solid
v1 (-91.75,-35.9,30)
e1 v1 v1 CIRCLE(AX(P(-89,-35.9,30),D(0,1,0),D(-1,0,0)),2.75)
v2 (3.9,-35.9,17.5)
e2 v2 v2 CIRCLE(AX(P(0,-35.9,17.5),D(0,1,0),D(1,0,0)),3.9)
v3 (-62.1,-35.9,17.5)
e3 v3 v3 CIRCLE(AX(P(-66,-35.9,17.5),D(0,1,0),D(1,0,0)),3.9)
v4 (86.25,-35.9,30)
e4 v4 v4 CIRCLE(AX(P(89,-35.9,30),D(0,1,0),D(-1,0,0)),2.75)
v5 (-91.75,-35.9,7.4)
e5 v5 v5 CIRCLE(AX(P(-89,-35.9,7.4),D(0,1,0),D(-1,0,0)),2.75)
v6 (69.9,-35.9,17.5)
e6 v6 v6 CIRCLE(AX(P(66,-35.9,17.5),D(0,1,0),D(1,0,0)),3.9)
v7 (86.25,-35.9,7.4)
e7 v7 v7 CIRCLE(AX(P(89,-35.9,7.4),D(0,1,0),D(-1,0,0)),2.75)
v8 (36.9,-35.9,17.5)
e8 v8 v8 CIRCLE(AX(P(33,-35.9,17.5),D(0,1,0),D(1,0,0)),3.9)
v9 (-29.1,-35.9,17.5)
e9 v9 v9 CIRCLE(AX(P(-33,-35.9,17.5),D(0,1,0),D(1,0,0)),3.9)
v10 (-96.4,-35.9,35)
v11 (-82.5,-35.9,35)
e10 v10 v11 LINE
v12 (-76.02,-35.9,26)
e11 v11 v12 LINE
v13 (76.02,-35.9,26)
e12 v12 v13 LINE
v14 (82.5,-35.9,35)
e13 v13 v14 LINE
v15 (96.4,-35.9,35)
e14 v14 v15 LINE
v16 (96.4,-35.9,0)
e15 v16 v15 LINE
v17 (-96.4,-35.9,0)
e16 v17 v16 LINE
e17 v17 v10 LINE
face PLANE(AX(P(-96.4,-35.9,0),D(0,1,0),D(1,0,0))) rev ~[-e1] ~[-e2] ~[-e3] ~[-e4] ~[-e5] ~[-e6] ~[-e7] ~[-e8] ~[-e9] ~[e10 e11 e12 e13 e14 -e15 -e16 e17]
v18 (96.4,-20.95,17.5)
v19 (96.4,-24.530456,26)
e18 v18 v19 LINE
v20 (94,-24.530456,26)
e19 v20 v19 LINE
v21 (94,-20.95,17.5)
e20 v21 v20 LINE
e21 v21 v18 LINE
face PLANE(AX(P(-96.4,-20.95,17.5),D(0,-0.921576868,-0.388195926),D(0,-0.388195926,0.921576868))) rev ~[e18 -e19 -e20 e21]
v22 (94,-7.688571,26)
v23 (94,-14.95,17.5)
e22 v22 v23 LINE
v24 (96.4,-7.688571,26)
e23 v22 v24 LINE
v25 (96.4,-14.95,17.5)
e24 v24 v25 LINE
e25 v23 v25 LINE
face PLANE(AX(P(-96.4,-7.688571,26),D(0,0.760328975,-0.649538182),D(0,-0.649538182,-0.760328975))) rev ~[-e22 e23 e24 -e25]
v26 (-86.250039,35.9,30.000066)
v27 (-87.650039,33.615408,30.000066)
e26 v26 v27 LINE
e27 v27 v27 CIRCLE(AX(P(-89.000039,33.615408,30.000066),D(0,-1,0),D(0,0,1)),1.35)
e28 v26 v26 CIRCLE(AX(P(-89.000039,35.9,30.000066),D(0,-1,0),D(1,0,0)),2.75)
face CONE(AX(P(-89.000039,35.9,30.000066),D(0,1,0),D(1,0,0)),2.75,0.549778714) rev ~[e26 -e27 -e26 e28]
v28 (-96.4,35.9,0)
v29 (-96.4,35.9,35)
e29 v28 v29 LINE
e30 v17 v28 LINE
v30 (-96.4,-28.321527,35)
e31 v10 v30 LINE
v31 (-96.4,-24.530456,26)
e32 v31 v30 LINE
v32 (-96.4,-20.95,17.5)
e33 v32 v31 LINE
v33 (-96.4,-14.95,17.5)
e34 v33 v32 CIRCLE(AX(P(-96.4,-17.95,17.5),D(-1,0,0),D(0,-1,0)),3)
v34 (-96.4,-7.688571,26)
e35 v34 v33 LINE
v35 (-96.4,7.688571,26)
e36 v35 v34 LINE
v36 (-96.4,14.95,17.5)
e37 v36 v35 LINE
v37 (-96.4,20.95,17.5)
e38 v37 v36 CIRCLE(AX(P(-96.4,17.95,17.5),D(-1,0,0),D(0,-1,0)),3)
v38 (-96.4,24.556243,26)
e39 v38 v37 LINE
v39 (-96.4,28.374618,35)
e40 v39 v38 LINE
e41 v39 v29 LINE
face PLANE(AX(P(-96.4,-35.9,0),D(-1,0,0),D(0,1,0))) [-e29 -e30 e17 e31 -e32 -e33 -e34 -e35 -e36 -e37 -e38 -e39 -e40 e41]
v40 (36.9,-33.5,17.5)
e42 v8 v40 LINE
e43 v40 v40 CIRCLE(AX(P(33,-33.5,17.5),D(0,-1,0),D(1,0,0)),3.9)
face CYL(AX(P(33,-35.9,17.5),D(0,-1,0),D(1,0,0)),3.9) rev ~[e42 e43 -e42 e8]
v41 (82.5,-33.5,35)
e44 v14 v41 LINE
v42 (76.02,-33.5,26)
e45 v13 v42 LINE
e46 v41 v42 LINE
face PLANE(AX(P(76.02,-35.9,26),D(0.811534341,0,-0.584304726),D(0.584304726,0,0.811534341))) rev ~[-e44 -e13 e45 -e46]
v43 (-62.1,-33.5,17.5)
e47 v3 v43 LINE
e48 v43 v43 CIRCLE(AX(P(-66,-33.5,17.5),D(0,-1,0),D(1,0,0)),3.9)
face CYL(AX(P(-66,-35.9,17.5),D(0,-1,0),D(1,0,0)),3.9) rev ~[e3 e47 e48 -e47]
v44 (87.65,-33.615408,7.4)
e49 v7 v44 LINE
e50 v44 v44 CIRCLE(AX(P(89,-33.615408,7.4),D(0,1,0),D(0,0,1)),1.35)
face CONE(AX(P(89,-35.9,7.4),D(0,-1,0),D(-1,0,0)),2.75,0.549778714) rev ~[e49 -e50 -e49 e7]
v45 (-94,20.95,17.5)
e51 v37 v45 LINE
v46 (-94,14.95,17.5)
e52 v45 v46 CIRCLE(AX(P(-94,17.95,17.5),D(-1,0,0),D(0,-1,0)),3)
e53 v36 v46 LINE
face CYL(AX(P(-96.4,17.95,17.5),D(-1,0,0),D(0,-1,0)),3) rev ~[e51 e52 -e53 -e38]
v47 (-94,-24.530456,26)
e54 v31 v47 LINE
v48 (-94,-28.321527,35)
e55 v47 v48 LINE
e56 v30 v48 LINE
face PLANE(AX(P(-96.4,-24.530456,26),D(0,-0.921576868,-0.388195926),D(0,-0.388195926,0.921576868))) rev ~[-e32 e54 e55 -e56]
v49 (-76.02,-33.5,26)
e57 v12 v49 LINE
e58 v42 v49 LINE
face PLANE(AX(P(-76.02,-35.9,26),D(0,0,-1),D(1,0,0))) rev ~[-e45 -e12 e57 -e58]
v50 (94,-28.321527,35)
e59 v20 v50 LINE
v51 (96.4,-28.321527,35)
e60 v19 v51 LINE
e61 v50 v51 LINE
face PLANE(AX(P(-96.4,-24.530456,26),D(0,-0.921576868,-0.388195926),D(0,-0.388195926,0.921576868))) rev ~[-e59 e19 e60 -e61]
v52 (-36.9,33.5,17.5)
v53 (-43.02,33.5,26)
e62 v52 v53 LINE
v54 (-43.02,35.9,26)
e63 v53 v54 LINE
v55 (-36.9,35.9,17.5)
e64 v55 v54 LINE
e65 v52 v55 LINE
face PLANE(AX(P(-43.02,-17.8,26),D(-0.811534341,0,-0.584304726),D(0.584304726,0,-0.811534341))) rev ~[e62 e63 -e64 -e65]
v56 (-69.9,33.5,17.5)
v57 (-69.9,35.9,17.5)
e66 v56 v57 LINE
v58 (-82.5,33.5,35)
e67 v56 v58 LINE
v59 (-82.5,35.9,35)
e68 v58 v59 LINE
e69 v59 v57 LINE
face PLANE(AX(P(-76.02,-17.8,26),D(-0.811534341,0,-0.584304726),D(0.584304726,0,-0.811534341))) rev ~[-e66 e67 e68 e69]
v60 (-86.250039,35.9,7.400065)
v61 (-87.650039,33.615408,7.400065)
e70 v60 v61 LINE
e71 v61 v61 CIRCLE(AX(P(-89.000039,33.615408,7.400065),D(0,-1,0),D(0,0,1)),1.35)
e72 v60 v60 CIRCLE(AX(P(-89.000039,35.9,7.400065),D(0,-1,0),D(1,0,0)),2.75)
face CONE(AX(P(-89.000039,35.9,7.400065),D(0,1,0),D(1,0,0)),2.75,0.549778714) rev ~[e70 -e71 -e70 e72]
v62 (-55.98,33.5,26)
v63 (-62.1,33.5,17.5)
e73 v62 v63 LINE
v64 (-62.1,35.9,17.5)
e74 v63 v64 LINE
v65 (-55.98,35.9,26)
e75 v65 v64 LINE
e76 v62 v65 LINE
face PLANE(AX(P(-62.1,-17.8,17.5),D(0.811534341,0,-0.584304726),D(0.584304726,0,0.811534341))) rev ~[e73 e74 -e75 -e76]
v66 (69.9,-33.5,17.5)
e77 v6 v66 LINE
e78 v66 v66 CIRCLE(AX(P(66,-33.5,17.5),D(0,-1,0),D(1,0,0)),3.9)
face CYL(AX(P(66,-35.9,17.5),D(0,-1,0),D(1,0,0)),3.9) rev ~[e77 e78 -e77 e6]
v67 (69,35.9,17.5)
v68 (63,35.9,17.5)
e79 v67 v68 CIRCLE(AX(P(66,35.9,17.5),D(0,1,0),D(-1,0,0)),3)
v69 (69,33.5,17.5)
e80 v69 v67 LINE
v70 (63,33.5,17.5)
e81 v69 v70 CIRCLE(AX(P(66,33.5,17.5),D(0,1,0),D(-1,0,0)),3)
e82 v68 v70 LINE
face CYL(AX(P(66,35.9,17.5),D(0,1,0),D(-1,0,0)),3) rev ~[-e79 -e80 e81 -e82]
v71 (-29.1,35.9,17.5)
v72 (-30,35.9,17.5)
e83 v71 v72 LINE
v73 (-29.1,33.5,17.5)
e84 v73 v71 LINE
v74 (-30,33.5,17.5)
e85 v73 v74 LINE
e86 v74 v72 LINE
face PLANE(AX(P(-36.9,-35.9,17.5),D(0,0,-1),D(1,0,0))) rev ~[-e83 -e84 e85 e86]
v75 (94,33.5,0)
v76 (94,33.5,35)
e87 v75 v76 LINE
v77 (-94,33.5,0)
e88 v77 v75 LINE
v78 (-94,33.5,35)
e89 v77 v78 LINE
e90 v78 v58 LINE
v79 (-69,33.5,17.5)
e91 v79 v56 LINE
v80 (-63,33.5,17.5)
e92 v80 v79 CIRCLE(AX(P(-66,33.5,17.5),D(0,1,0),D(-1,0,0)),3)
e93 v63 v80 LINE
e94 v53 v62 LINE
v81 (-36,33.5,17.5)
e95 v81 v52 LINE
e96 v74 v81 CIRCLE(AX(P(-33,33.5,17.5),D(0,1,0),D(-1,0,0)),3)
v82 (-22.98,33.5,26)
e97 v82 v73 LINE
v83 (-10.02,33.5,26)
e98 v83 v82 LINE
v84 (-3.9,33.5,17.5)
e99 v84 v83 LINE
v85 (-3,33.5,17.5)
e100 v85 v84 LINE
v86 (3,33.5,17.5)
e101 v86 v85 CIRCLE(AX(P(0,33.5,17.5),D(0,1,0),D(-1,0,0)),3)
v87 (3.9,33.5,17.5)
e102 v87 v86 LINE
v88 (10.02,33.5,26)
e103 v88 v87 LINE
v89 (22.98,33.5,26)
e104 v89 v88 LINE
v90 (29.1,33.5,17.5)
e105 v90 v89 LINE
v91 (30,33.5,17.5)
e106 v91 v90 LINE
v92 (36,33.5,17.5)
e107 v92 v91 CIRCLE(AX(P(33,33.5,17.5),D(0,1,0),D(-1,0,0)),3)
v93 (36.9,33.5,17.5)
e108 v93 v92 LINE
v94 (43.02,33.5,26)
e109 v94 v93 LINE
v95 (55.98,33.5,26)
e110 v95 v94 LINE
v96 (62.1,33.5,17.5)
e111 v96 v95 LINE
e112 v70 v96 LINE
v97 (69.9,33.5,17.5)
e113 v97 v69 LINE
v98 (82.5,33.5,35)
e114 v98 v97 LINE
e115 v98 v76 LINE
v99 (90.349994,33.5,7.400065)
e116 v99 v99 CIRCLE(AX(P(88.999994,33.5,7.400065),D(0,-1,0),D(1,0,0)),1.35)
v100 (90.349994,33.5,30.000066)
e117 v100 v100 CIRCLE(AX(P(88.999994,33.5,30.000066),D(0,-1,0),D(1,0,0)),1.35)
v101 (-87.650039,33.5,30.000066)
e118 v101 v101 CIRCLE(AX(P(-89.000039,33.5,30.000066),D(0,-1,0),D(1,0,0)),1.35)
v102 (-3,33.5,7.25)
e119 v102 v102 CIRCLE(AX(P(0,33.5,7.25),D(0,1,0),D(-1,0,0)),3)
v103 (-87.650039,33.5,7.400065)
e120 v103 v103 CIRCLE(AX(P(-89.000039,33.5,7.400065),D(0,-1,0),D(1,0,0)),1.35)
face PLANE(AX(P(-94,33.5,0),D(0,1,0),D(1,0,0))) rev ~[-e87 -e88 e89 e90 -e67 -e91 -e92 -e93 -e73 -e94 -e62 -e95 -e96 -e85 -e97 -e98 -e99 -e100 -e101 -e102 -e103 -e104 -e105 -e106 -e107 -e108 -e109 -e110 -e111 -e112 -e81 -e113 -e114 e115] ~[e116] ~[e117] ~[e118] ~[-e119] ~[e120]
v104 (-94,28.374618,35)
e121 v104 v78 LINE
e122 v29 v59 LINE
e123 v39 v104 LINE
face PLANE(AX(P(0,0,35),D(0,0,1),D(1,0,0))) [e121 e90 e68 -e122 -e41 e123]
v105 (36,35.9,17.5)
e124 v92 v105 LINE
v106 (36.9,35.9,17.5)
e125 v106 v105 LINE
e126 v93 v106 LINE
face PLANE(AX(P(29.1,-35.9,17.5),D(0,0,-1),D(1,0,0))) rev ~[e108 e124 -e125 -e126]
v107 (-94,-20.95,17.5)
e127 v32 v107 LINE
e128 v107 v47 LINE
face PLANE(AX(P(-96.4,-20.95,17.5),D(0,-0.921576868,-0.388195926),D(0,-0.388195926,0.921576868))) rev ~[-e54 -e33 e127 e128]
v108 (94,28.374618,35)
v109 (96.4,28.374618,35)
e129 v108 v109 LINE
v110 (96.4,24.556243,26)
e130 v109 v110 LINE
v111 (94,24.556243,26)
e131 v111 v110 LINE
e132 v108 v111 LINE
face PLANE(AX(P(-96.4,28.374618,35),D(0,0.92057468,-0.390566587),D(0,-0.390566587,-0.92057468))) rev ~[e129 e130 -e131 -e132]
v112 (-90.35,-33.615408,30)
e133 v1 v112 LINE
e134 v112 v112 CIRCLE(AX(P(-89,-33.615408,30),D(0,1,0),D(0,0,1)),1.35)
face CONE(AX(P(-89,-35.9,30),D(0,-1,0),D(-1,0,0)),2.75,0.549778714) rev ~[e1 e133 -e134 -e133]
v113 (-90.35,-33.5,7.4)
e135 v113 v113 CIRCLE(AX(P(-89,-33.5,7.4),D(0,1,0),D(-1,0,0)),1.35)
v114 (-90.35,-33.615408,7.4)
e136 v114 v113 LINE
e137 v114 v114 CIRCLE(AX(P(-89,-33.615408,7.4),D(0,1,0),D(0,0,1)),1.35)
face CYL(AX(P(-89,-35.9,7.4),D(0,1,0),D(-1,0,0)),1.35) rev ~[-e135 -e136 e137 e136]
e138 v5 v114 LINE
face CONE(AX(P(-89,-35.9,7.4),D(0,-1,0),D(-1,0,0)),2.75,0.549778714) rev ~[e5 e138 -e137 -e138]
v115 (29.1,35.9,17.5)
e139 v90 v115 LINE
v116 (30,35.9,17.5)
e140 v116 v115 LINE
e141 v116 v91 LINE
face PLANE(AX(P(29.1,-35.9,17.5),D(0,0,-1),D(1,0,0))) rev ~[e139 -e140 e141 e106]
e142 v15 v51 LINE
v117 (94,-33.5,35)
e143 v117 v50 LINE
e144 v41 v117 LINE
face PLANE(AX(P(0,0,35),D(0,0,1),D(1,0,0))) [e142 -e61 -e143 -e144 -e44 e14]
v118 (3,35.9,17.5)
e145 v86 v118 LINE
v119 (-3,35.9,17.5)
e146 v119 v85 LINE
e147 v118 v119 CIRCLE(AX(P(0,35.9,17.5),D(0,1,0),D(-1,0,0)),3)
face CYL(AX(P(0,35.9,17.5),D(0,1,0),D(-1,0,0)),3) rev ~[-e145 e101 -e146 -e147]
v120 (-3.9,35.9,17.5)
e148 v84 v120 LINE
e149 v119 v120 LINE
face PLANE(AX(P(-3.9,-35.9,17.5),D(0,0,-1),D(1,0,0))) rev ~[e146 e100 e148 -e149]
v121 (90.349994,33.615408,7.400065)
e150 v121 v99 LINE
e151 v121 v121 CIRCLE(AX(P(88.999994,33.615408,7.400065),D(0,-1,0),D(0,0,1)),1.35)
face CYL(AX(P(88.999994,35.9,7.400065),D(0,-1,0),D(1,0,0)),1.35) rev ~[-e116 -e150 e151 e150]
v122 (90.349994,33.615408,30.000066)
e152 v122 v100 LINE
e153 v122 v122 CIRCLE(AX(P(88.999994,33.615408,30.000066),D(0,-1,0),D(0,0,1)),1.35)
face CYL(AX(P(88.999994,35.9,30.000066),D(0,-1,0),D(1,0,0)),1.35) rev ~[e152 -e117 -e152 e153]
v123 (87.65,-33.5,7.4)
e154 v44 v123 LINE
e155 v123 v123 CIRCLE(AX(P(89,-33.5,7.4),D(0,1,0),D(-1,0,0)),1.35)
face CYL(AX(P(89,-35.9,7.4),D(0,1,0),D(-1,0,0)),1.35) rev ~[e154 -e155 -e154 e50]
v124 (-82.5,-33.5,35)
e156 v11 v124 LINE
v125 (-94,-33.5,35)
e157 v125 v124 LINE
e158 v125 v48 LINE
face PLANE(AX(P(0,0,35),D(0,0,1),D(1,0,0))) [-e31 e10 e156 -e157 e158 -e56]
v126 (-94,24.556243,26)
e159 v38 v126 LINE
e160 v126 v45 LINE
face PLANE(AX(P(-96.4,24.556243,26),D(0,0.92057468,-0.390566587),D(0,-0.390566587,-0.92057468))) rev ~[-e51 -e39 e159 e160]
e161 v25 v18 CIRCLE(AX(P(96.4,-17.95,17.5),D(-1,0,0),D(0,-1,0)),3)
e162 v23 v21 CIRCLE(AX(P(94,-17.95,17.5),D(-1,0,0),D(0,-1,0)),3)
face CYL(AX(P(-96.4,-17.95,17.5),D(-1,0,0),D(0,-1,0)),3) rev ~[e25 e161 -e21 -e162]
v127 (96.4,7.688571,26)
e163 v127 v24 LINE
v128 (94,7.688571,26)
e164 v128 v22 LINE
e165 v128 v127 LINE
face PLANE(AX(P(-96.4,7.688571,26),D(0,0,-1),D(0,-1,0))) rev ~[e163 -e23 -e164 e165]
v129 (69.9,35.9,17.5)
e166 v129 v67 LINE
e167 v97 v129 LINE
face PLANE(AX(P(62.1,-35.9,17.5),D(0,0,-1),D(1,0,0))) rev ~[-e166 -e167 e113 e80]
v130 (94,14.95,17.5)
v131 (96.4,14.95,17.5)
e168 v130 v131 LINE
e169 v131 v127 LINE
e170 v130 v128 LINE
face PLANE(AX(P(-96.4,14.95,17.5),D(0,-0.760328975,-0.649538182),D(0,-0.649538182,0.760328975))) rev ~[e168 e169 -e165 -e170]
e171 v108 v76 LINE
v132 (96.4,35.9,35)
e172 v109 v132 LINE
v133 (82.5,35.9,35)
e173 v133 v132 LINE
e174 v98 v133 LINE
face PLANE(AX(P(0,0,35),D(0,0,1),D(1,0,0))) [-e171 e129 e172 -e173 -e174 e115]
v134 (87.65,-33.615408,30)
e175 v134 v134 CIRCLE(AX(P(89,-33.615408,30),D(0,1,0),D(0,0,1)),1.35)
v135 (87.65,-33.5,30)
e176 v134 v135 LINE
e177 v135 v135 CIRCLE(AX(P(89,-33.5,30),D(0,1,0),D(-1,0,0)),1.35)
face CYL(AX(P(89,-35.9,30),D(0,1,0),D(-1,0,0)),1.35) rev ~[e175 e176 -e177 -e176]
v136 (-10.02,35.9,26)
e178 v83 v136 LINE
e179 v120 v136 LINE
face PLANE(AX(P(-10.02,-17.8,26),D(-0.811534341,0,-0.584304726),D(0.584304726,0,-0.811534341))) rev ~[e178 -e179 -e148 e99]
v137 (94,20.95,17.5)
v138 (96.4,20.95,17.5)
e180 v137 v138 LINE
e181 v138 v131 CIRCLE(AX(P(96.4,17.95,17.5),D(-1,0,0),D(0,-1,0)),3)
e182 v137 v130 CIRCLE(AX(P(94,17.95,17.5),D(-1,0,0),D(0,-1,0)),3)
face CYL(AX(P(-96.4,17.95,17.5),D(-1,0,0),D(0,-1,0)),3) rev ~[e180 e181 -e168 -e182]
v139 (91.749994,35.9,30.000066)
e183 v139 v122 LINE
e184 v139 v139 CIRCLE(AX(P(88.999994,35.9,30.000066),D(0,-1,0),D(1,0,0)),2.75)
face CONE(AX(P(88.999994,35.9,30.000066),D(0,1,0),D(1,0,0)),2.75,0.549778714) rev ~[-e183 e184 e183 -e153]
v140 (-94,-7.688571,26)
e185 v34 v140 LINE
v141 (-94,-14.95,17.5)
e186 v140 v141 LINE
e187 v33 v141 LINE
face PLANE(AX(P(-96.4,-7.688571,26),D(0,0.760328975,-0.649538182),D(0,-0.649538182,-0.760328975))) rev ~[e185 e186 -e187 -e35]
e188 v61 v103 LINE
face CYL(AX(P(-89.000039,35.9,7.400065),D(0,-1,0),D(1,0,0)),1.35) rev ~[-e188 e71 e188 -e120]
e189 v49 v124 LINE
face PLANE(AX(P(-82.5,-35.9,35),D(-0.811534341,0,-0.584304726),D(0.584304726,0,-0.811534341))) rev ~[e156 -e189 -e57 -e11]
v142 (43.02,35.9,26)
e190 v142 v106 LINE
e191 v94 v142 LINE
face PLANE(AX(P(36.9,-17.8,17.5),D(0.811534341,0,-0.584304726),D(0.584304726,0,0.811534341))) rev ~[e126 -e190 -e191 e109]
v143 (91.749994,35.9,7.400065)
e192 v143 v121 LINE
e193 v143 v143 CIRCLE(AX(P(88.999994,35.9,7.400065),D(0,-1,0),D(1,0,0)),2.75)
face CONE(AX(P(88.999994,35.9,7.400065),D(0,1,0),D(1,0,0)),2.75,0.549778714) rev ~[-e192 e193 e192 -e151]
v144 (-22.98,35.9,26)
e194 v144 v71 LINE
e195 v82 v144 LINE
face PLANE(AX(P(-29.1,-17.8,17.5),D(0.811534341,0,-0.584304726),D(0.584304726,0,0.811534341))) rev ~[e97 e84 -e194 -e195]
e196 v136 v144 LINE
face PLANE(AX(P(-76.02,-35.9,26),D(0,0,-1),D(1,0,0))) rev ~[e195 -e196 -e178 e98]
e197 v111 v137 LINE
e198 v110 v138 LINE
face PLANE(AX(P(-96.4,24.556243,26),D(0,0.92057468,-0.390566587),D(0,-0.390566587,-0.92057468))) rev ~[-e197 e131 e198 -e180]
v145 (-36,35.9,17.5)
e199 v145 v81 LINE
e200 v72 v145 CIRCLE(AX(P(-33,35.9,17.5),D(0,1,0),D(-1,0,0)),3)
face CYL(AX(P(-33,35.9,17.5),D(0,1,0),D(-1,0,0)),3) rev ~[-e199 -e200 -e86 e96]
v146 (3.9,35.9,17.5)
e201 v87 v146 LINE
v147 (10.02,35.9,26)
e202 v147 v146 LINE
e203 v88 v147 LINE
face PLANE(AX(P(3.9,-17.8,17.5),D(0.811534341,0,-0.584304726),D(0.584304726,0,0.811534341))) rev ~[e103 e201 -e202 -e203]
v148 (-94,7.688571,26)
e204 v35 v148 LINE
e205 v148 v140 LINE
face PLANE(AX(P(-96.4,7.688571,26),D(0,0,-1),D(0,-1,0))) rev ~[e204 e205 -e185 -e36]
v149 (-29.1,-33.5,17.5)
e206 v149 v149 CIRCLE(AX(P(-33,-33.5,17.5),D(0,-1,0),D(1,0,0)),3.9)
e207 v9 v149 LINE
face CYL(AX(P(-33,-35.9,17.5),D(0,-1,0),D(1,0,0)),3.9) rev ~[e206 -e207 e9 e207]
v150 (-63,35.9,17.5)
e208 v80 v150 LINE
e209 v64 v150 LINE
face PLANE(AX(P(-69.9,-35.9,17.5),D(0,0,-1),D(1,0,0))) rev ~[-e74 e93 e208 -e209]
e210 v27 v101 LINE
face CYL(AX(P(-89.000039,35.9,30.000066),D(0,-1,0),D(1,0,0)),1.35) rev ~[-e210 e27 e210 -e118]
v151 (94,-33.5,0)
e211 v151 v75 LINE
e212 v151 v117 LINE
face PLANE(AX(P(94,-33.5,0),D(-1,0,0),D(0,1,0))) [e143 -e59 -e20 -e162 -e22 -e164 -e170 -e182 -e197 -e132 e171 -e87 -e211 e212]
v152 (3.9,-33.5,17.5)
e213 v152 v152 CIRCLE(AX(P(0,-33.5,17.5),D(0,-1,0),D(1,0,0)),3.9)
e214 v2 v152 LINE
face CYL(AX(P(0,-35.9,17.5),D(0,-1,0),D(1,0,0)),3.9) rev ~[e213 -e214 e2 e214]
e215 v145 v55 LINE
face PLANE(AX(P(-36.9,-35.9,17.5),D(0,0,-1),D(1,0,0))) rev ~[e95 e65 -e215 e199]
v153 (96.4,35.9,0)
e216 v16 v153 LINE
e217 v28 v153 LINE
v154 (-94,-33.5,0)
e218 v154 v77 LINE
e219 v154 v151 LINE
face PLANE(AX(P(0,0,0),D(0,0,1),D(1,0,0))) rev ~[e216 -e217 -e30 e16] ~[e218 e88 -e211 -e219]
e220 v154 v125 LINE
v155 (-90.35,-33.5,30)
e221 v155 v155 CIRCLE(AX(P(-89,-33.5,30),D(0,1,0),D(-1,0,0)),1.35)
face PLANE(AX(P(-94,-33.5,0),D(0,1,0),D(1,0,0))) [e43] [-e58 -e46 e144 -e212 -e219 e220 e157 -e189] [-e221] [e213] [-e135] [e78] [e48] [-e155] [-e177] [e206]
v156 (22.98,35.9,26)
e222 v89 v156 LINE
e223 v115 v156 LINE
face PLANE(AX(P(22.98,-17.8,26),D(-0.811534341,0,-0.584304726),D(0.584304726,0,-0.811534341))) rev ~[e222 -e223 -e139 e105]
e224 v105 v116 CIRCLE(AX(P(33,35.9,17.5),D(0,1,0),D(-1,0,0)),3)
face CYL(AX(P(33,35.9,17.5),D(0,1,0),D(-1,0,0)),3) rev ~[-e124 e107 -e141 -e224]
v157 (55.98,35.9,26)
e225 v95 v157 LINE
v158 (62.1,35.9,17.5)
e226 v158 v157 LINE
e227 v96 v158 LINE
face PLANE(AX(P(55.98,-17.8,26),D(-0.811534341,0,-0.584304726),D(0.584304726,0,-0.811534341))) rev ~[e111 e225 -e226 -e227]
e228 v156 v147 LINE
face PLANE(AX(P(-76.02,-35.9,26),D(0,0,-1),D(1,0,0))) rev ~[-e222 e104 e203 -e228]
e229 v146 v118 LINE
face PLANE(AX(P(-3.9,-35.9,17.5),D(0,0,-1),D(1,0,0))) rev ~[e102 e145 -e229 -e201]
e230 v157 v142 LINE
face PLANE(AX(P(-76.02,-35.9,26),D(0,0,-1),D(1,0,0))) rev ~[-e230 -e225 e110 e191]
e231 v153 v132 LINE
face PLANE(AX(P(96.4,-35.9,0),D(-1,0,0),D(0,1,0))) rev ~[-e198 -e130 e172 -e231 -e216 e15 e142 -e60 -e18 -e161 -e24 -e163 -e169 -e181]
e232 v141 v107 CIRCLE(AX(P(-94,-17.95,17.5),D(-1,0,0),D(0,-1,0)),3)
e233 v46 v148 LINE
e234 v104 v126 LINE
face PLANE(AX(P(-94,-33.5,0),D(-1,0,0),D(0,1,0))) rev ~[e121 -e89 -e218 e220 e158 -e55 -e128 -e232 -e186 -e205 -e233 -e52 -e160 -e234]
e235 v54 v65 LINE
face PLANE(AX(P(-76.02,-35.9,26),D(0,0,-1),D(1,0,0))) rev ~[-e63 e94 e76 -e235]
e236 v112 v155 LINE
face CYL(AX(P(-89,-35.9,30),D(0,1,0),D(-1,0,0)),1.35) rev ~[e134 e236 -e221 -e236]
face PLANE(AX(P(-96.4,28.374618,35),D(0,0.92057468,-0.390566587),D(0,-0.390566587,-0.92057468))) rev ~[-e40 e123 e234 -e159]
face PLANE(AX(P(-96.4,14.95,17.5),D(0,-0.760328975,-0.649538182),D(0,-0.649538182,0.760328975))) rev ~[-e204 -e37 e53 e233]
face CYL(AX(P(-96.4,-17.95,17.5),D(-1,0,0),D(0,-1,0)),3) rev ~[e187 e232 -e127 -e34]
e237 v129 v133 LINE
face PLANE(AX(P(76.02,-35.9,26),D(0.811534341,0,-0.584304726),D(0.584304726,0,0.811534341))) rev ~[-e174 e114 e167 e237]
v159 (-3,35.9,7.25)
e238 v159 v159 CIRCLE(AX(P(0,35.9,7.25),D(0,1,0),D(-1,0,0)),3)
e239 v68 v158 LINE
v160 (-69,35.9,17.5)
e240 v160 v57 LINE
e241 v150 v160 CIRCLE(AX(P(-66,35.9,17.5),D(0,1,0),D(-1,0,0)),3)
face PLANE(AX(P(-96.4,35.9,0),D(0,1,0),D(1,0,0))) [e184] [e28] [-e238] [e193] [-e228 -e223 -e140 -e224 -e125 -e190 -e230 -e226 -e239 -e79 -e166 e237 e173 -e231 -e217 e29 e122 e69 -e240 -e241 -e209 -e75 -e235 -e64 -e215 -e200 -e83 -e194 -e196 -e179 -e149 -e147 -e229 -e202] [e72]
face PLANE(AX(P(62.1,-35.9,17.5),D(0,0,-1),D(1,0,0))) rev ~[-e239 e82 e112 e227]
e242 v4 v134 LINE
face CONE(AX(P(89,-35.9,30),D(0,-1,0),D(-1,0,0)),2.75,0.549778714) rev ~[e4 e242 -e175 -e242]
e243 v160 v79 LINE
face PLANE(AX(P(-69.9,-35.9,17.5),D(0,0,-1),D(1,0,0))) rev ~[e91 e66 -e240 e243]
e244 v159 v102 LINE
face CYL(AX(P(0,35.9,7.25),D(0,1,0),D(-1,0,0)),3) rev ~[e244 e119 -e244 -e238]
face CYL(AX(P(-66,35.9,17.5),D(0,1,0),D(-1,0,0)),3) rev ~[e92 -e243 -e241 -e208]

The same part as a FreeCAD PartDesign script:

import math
import FreeCAD as App
import Part
import Sketcher

V = App.Vector


def add_polygon(sketch, points):
    """Adds a closed chain of lines whose ends are joined by coincident constraints."""
    first, n = sketch.GeometryCount, len(points)
    for a, b in zip(points, points[1:] + points[:1]):
        sketch.addGeometry(Part.LineSegment(App.Vector(*a, 0), App.Vector(*b, 0)), False)
    for i in range(n):
        sketch.addConstraint(Sketcher.Constraint("Coincident", first + i, 2, first + (i + 1) % n, 1))

doc = App.newDocument("Part")
body = doc.addObject("PartDesign::Body", "Body")

# Sketch on XY plane
sketch1 = body.newObject("Sketcher::SketchObject", "Sketch")
sketch1.AttachmentSupport = (doc.getObject("XY_Plane"), [""])
sketch1.MapMode = "FlatFace"
add_polygon(sketch1, [(-96, 36), (-96, -36), (96, -36), (96, 36)])  # lines 0-3
add_polygon(sketch1, [(94, -34), (-94, -34), (-94, 34), (94, 34)])  # lines 4-7
sketch1.addConstraint(Sketcher.Constraint("Vertical", 0))
sketch1.addConstraint(Sketcher.Constraint("Horizontal", 1))
sketch1.addConstraint(Sketcher.Constraint("Vertical", 2))
sketch1.addConstraint(Sketcher.Constraint("Horizontal", 3))
sketch1.addConstraint(Sketcher.Constraint("Horizontal", 4))
sketch1.addConstraint(Sketcher.Constraint("Vertical", 5))
sketch1.addConstraint(Sketcher.Constraint("Horizontal", 6))
sketch1.addConstraint(Sketcher.Constraint("Vertical", 7))
sketch1.addConstraint(Sketcher.Constraint("Symmetric", 0, 2, 2, 2, -1, 1))
sketch1.addConstraint(Sketcher.Constraint("Symmetric", 4, 2, 6, 2, -1, 1))
sketch1.addConstraint(Sketcher.Constraint("DistanceX", 4, 2, 4, 1, 188.0))
sketch1.addConstraint(Sketcher.Constraint("DistanceY", 5, 1, 5, 2, 67.0))
sketch1.addConstraint(Sketcher.Constraint("DistanceX", 1, 1, 1, 2, 192.8))
sketch1.addConstraint(Sketcher.Constraint("DistanceY", 0, 2, 0, 1, 71.8))
pad1 = body.newObject("PartDesign::Pad", "Pad")
pad1.Profile = sketch1
pad1.Length = 35

# Sketch on YZ plane
sketch2 = body.newObject("Sketcher::SketchObject", "Sketch001")
sketch2.AttachmentSupport = (doc.getObject("YZ_Plane"), [""])
sketch2.MapMode = "FlatFace"
sketch2.AttachmentOffset = App.Placement(V(0, 0, -96.4), App.Rotation())
sketch2.addGeometry(Part.Circle(V(17.9, 17.5, 0), V(0, 0, 1), 3), False)
sketch2.addGeometry(Part.Circle(V(-17.9, 17.5, 0), V(0, 0, 1), 3), False)
sketch2.addConstraint(Sketcher.Constraint("Equal", 0, 1))
sketch2.addConstraint(Sketcher.Constraint("Symmetric", 0, 3, 1, 3, -2))
sketch2.addConstraint(Sketcher.Constraint("Diameter", 0, 6.0))
sketch2.addConstraint(Sketcher.Constraint("DistanceY", -1, 1, 0, 3, 17.5))
sketch2.addConstraint(Sketcher.Constraint("DistanceX", 1, 3, 0, 3, 35.9))
pocket1 = body.newObject("PartDesign::Pocket", "Pocket")
pocket1.Profile = sketch2
pocket1.Type = "ThroughAll"
pocket1.Reversed = True

# Sketch on XZ plane
sketch3 = body.newObject("Sketcher::SketchObject", "Sketch002")
sketch3.AttachmentSupport = (doc.getObject("XZ_Plane"), [""])
sketch3.MapMode = "FlatFace"
sketch3.AttachmentOffset = App.Placement(V(0, 0, 35.9), App.Rotation())
sketch3.addGeometry(Part.Circle(V(0, 17.5, 0), V(0, 0, 1), 3.9), False)
sketch3.addGeometry(Part.Circle(V(33, 17.5, 0), V(0, 0, 1), 3.9), False)
sketch3.addGeometry(Part.Circle(V(66, 17.5, 0), V(0, 0, 1), 3.9), False)
sketch3.addGeometry(Part.Circle(V(-33, 17.5, 0), V(0, 0, 1), 3.9), False)
sketch3.addGeometry(Part.Circle(V(-66, 17.5, 0), V(0, 0, 1), 3.9), False)
sketch3.addConstraint(Sketcher.Constraint("Equal", 0, 1))
sketch3.addConstraint(Sketcher.Constraint("Equal", 1, 2))
sketch3.addConstraint(Sketcher.Constraint("Equal", 2, 3))
sketch3.addConstraint(Sketcher.Constraint("Equal", 3, 4))
sketch3.addConstraint(Sketcher.Constraint("Symmetric", 1, 3, 3, 3, -2))
sketch3.addConstraint(Sketcher.Constraint("Symmetric", 2, 3, 4, 3, -2))
sketch3.addConstraint(Sketcher.Constraint("PointOnObject", 0, 3, -2))
sketch3.addConstraint(Sketcher.Constraint("Horizontal", 0, 3, 1, 3))
sketch3.addConstraint(Sketcher.Constraint("Horizontal", 1, 3, 2, 3))
sketch3.addConstraint(Sketcher.Constraint("Diameter", 0, 7.8))
sketch3.addConstraint(Sketcher.Constraint("DistanceX", -1, 1, 1, 3, 33.0))
sketch3.addConstraint(Sketcher.Constraint("DistanceX", -1, 1, 2, 3, 66.0))
sketch3.addConstraint(Sketcher.Constraint("DistanceY", -1, 1, 0, 3, 17.5))
pocket2 = body.newObject("PartDesign::Pocket", "Pocket001")
pocket2.Profile = sketch3
pocket2.Length = 25

# Sketch on XZ plane
sketch4 = body.newObject("Sketcher::SketchObject", "Sketch003")
sketch4.AttachmentSupport = (doc.getObject("XZ_Plane"), [""])
sketch4.MapMode = "FlatFace"
sketch4.AttachmentOffset = App.Placement(V(0, 0, -35.9), App.Rotation())
sketch4.addGeometry(Part.Circle(V(0, 17.5, 0), V(0, 0, 1), 3), False)
sketch4.addGeometry(Part.Circle(V(-33, 17.5, 0), V(0, 0, 1), 3), False)
sketch4.addGeometry(Part.Circle(V(-66, 17.5, 0), V(0, 0, 1), 3), False)
sketch4.addGeometry(Part.Circle(V(33, 17.5, 0), V(0, 0, 1), 3), False)
sketch4.addGeometry(Part.Circle(V(66, 17.5, 0), V(0, 0, 1), 3), False)
sketch4.addConstraint(Sketcher.Constraint("Equal", 0, 1))
sketch4.addConstraint(Sketcher.Constraint("Equal", 1, 2))
sketch4.addConstraint(Sketcher.Constraint("Equal", 2, 3))
sketch4.addConstraint(Sketcher.Constraint("Equal", 3, 4))
sketch4.addConstraint(Sketcher.Constraint("Symmetric", 1, 3, 3, 3, -2))
sketch4.addConstraint(Sketcher.Constraint("Symmetric", 2, 3, 4, 3, -2))
sketch4.addConstraint(Sketcher.Constraint("PointOnObject", 0, 3, -2))
sketch4.addConstraint(Sketcher.Constraint("Horizontal", 0, 3, 1, 3))
sketch4.addConstraint(Sketcher.Constraint("Horizontal", 1, 3, 2, 3))
sketch4.addConstraint(Sketcher.Constraint("Diameter", 0, 6.0))
sketch4.addConstraint(Sketcher.Constraint("DistanceX", 1, 3, -1, 1, 33.0))
sketch4.addConstraint(Sketcher.Constraint("DistanceX", 2, 3, -1, 1, 66.0))
sketch4.addConstraint(Sketcher.Constraint("DistanceY", -1, 1, 0, 3, 17.5))
pocket3 = body.newObject("PartDesign::Pocket", "Pocket002")
pocket3.Profile = sketch4
pocket3.Length = 25
pocket3.Reversed = True

# Sketch on YZ plane
sketch5 = body.newObject("Sketcher::SketchObject", "Sketch004")
sketch5.AttachmentSupport = (doc.getObject("YZ_Plane"), [""])
sketch5.MapMode = "FlatFace"
sketch5.AttachmentOffset = App.Placement(V(0, 0, -96.4), App.Rotation())
sketch5.addGeometry(Part.LineSegment(V(24.6, 26, 0), V(20.9, 17.5, 0)), False)
sketch5.addGeometry(Part.ArcOfCircle(Part.Circle(V(17.9, 17.5, 0), V(0, 0, 1), 3), math.radians(0), math.radians(180)), False)
sketch5.addGeometry(Part.LineSegment(V(14.9, 17.5, 0), V(7.7, 26, 0)), False)
sketch5.addGeometry(Part.LineSegment(V(7.7, 26, 0), V(-7.7, 26, 0)), False)
sketch5.addGeometry(Part.LineSegment(V(-7.7, 26, 0), V(-14.9, 17.5, 0)), False)
sketch5.addGeometry(Part.ArcOfCircle(Part.Circle(V(-17.9, 17.5, 0), V(0, 0, 1), 3), math.radians(0), math.radians(180)), False)
sketch5.addGeometry(Part.LineSegment(V(-20.9, 17.5, 0), V(-24.5, 26, 0)), False)
sketch5.addGeometry(Part.LineSegment(V(-24.5, 26, 0), V(-28.3, 35, 0)), False)
sketch5.addGeometry(Part.LineSegment(V(-28.3, 35, 0), V(28.4, 35, 0)), False)
sketch5.addGeometry(Part.LineSegment(V(28.4, 35, 0), V(24.6, 26, 0)), False)
sketch5.addConstraint(Sketcher.Constraint("Coincident", 0, 2, 1, 1))
sketch5.addConstraint(Sketcher.Constraint("Coincident", 1, 2, 2, 1))
sketch5.addConstraint(Sketcher.Constraint("Coincident", 2, 2, 3, 1))
sketch5.addConstraint(Sketcher.Constraint("Coincident", 3, 2, 4, 1))
sketch5.addConstraint(Sketcher.Constraint("Coincident", 4, 2, 5, 1))
sketch5.addConstraint(Sketcher.Constraint("Coincident", 5, 2, 6, 1))
sketch5.addConstraint(Sketcher.Constraint("Coincident", 6, 2, 7, 1))
sketch5.addConstraint(Sketcher.Constraint("Coincident", 7, 2, 8, 1))
sketch5.addConstraint(Sketcher.Constraint("Coincident", 8, 2, 9, 1))
sketch5.addConstraint(Sketcher.Constraint("Coincident", 9, 2, 0, 1))
sketch5.addConstraint(Sketcher.Constraint("Horizontal", 3))
sketch5.addConstraint(Sketcher.Constraint("Horizontal", 8))
sketch5.addConstraint(Sketcher.Constraint("Equal", 1, 5))
sketch5.addConstraint(Sketcher.Constraint("Symmetric", 1, 3, 5, 3, -2))
sketch5.addConstraint(Sketcher.Constraint("Parallel", 6, 7))
sketch5.addConstraint(Sketcher.Constraint("Parallel", 0, 9))
sketch5.addConstraint(Sketcher.Constraint("Horizontal", 5, 3, 0, 2))
sketch5.addConstraint(Sketcher.Constraint("Horizontal", 0, 2, 1, 2))
sketch5.addConstraint(Sketcher.Constraint("Horizontal", 1, 2, 4, 2))
sketch5.addConstraint(Sketcher.Constraint("Horizontal", 4, 2, 5, 2))
sketch5.addConstraint(Sketcher.Constraint("Horizontal", 3, 2, 6, 2))
sketch5.addConstraint(Sketcher.Constraint("Horizontal", 6, 2, 9, 2))
sketch5.addConstraint(Sketcher.Constraint("Equal", 2, 4))
sketch5.addConstraint(Sketcher.Constraint("Radius", 1, 3.0))
sketch5.addConstraint(Sketcher.Constraint("DistanceY", -1, 1, 2, 2, 26.0))
sketch5.addConstraint(Sketcher.Constraint("DistanceY", -1, 1, 7, 2, 35.0))
sketch5.addConstraint(Sketcher.Constraint("DistanceY", -1, 1, 1, 3, 17.5))
sketch5.addConstraint(Sketcher.Constraint("DistanceX", 5, 3, 1, 3, 35.9))
sketch5.addConstraint(Sketcher.Constraint("Distance", 9, 9.776502))
sketch5.addConstraint(Sketcher.Constraint("Distance", 2, 11.179371))
sketch5.addConstraint(Sketcher.Constraint("Distance", 6, 9.223322))
pocket4 = body.newObject("PartDesign::Pocket", "Pocket003")
pocket4.Profile = sketch5
pocket4.Type = "ThroughAll"
pocket4.Reversed = True

# Sketch on XZ plane
sketch6 = body.newObject("Sketcher::SketchObject", "Sketch005")
sketch6.AttachmentSupport = (doc.getObject("XZ_Plane"), [""])
sketch6.MapMode = "FlatFace"
sketch6.AttachmentOffset = App.Placement(V(0, 0, 35.9), App.Rotation())
add_polygon(sketch6, [(-82.5, 35), (-76, 26), (76, 26), (82.5, 35)])  # lines 0-3
sketch6.addGeometry(Part.ArcOfCircle(Part.Circle(V(66, 17.5, 0), V(0, 0, 1), 3.9), math.radians(0), math.radians(180)), False)  # 4
sketch6.addGeometry(Part.LineSegment(V(62.1, 17.5, 0), V(69.9, 17.5, 0)), False)  # 5
sketch6.addGeometry(Part.ArcOfCircle(Part.Circle(V(33, 17.5, 0), V(0, 0, 1), 3.9), math.radians(0), math.radians(180)), False)  # 6
sketch6.addGeometry(Part.LineSegment(V(29.1, 17.5, 0), V(36.9, 17.5, 0)), False)  # 7
sketch6.addGeometry(Part.ArcOfCircle(Part.Circle(V(0, 17.5, 0), V(0, 0, 1), 3.9), math.radians(0), math.radians(180)), False)  # 8
sketch6.addGeometry(Part.LineSegment(V(-3.9, 17.5, 0), V(3.9, 17.5, 0)), False)  # 9
sketch6.addGeometry(Part.ArcOfCircle(Part.Circle(V(-33, 17.5, 0), V(0, 0, 1), 3.9), math.radians(0), math.radians(180)), False)  # 10
sketch6.addGeometry(Part.LineSegment(V(-36.9, 17.5, 0), V(-29.1, 17.5, 0)), False)  # 11
sketch6.addGeometry(Part.ArcOfCircle(Part.Circle(V(-66, 17.5, 0), V(0, 0, 1), 3.9), math.radians(0), math.radians(180)), False)  # 12
sketch6.addGeometry(Part.LineSegment(V(-69.9, 17.5, 0), V(-62.1, 17.5, 0)), False)  # 13
sketch6.addConstraint(Sketcher.Constraint("Coincident", 4, 1, 5, 2))
sketch6.addConstraint(Sketcher.Constraint("Coincident", 5, 1, 4, 2))
sketch6.addConstraint(Sketcher.Constraint("Coincident", 6, 1, 7, 2))
sketch6.addConstraint(Sketcher.Constraint("Coincident", 7, 1, 6, 2))
sketch6.addConstraint(Sketcher.Constraint("Coincident", 8, 1, 9, 2))
sketch6.addConstraint(Sketcher.Constraint("Coincident", 9, 1, 8, 2))
sketch6.addConstraint(Sketcher.Constraint("Coincident", 10, 1, 11, 2))
sketch6.addConstraint(Sketcher.Constraint("Coincident", 11, 1, 10, 2))
sketch6.addConstraint(Sketcher.Constraint("Coincident", 12, 1, 13, 2))
sketch6.addConstraint(Sketcher.Constraint("Coincident", 13, 1, 12, 2))
sketch6.addConstraint(Sketcher.Constraint("Horizontal", 1))
sketch6.addConstraint(Sketcher.Constraint("Horizontal", 3))
sketch6.addConstraint(Sketcher.Constraint("Horizontal", 5))
sketch6.addConstraint(Sketcher.Constraint("Horizontal", 7))
sketch6.addConstraint(Sketcher.Constraint("Horizontal", 9))
sketch6.addConstraint(Sketcher.Constraint("Horizontal", 11))
sketch6.addConstraint(Sketcher.Constraint("Horizontal", 13))
sketch6.addConstraint(Sketcher.Constraint("Equal", 4, 6))
sketch6.addConstraint(Sketcher.Constraint("Equal", 6, 8))
sketch6.addConstraint(Sketcher.Constraint("Equal", 8, 10))
sketch6.addConstraint(Sketcher.Constraint("Equal", 10, 12))
sketch6.addConstraint(Sketcher.Constraint("Symmetric", 6, 3, 10, 3, -2))
sketch6.addConstraint(Sketcher.Constraint("Symmetric", 4, 3, 12, 3, -2))
sketch6.addConstraint(Sketcher.Constraint("PointOnObject", 8, 3, -2))
sketch6.addConstraint(Sketcher.Constraint("Horizontal", 4, 3, 6, 3))
sketch6.addConstraint(Sketcher.Constraint("Horizontal", 6, 3, 8, 3))
sketch6.addConstraint(Sketcher.Constraint("Horizontal", 12, 3, 4, 1))
sketch6.addConstraint(Sketcher.Constraint("Horizontal", 5, 1, 6, 1))
sketch6.addConstraint(Sketcher.Constraint("Horizontal", 7, 1, 8, 1))
sketch6.addConstraint(Sketcher.Constraint("Horizontal", 9, 1, 10, 1))
sketch6.addConstraint(Sketcher.Constraint("Horizontal", 11, 1, 12, 1))
sketch6.addConstraint(Sketcher.Constraint("Equal", 0, 2))
sketch6.addConstraint(Sketcher.Constraint("Radius", 4, 3.9))
sketch6.addConstraint(Sketcher.Constraint("DistanceX", 3, 2, 3, 1, 165.0))
sketch6.addConstraint(Sketcher.Constraint("DistanceX", -1, 1, 4, 3, 66.0))
sketch6.addConstraint(Sketcher.Constraint("DistanceX", -1, 1, 6, 3, 33.0))
sketch6.addConstraint(Sketcher.Constraint("DistanceY", -1, 1, 0, 2, 26.0))
sketch6.addConstraint(Sketcher.Constraint("DistanceY", -1, 1, 2, 2, 35.0))
sketch6.addConstraint(Sketcher.Constraint("DistanceX", 1, 1, 1, 2, 152.04))
sketch6.addConstraint(Sketcher.Constraint("DistanceY", -1, 1, 4, 3, 17.5))
sketch6.addConstraint(Sketcher.Constraint("DistanceX", -1, 1, 2, 2, 82.5))
pocket5 = body.newObject("PartDesign::Pocket", "Pocket004")
pocket5.Profile = sketch6
pocket5.Type = "ThroughAll"

# Sketch on XZ plane
sketch7 = body.newObject("Sketcher::SketchObject", "Sketch006")
sketch7.AttachmentSupport = (doc.getObject("XZ_Plane"), [""])
sketch7.MapMode = "FlatFace"
sketch7.AttachmentOffset = App.Placement(V(0, 0, 35.9), App.Rotation())
sketch7.addGeometry(Part.Circle(V(-89, 30, 0), V(0, 0, 1), 1.4), False)
sketch7.addGeometry(Part.Circle(V(-89, 7.4, 0), V(0, 0, 1), 1.4), False)
sketch7.addGeometry(Part.Circle(V(89, 30, 0), V(0, 0, 1), 1.4), False)
sketch7.addGeometry(Part.Circle(V(89, 7.4, 0), V(0, 0, 1), 1.4), False)
sketch7.addConstraint(Sketcher.Constraint("Equal", 0, 1))
sketch7.addConstraint(Sketcher.Constraint("Equal", 1, 2))
sketch7.addConstraint(Sketcher.Constraint("Equal", 2, 3))
sketch7.addConstraint(Sketcher.Constraint("Symmetric", 0, 3, 2, 3, -2))
sketch7.addConstraint(Sketcher.Constraint("Symmetric", 1, 3, 3, 3, -2))
sketch7.addConstraint(Sketcher.Constraint("Vertical", 0, 3, 1, 3))
sketch7.addConstraint(Sketcher.Constraint("Diameter", 0, 2.7))
sketch7.addConstraint(Sketcher.Constraint("DistanceX", 0, 3, -1, 1, 89.0))
sketch7.addConstraint(Sketcher.Constraint("DistanceY", -1, 1, 0, 3, 30.0))
sketch7.addConstraint(Sketcher.Constraint("DistanceY", -1, 1, 1, 3, 7.4))
doc.recompute()
hole = body.newObject("PartDesign::Hole", "Hole")
hole.Profile = sketch7
hole.ThreadType = "None"
hole.Diameter = 2.7
hole.DepthType = "Dimension"
hole.Depth = 12
hole.DrillPoint = "Angled"
hole.DrillPointAngle = 118
hole.HoleCutType = "Countersink"
hole.HoleCutDiameter = 5.5
hole.HoleCutCountersinkAngle = 63

# Sketch on XZ plane
sketch8 = body.newObject("Sketcher::SketchObject", "Sketch007")
sketch8.AttachmentSupport = (doc.getObject("XZ_Plane"), [""])
sketch8.MapMode = "FlatFace"
sketch8.AttachmentOffset = App.Placement(V(0, 0, -35.9), App.Rotation())
sketch8.addGeometry(Part.Circle(V(-89, 30, 0), V(0, 0, 1), 1.4), False)
sketch8.addGeometry(Part.Circle(V(-89, 7.4, 0), V(0, 0, 1), 1.4), False)
sketch8.addGeometry(Part.Circle(V(89, 30, 0), V(0, 0, 1), 1.4), False)
sketch8.addGeometry(Part.Circle(V(89, 7.4, 0), V(0, 0, 1), 1.4), False)
sketch8.addConstraint(Sketcher.Constraint("Equal", 0, 1))
sketch8.addConstraint(Sketcher.Constraint("Equal", 1, 2))
sketch8.addConstraint(Sketcher.Constraint("Equal", 2, 3))
sketch8.addConstraint(Sketcher.Constraint("Horizontal", 0, 3, 2, 3))
sketch8.addConstraint(Sketcher.Constraint("Horizontal", 1, 3, 3, 3))
sketch8.addConstraint(Sketcher.Constraint("Vertical", 0, 3, 1, 3))
sketch8.addConstraint(Sketcher.Constraint("Vertical", 2, 3, 3, 3))
sketch8.addConstraint(Sketcher.Constraint("Diameter", 0, 2.7))
sketch8.addConstraint(Sketcher.Constraint("DistanceY", 1, 3, 0, 3, 22.600001))
sketch8.addConstraint(Sketcher.Constraint("DistanceX", 0, 3, -1, 1, 89.000039))
sketch8.addConstraint(Sketcher.Constraint("DistanceY", -1, 1, 0, 3, 30.000066))
sketch8.addConstraint(Sketcher.Constraint("DistanceX", -1, 1, 2, 3, 88.999994))
doc.recompute()
hole2 = body.newObject("PartDesign::Hole", "Hole001")
hole2.Profile = sketch8
hole2.ThreadType = "None"
hole2.Diameter = 2.7
hole2.DepthType = "Dimension"
hole2.Depth = 12
hole2.DrillPoint = "Angled"
hole2.DrillPointAngle = 118
hole2.HoleCutType = "Countersink"
hole2.HoleCutDiameter = 5.5
hole2.HoleCutCountersinkAngle = 63
hole2.Reversed = True

# Sketch on XZ plane
sketch9 = body.newObject("Sketcher::SketchObject", "Sketch008")
sketch9.AttachmentSupport = (doc.getObject("XZ_Plane"), [""])
sketch9.MapMode = "FlatFace"
sketch9.AttachmentOffset = App.Placement(V(0, 0, 17.8), App.Rotation())
sketch9.addGeometry(Part.LineSegment(V(-56, 26, 0), V(-76, 26, 0)), False)
sketch9.addGeometry(Part.LineSegment(V(-76, 26, 0), V(-69.9, 17.5, 0)), False)
sketch9.addGeometry(Part.ArcOfCircle(Part.Circle(V(-66, 17.5, 0), V(0, 0, 1), 3.9), math.radians(0), math.radians(180)), False)
sketch9.addGeometry(Part.LineSegment(V(-62.1, 17.5, 0), V(-56, 26, 0)), False)
sketch9.addGeometry(Part.LineSegment(V(-23, 26, 0), V(-43, 26, 0)), False)
sketch9.addGeometry(Part.LineSegment(V(-43, 26, 0), V(-36.9, 17.5, 0)), False)
sketch9.addGeometry(Part.ArcOfCircle(Part.Circle(V(-33, 17.5, 0), V(0, 0, 1), 3.9), math.radians(0), math.radians(180)), False)
sketch9.addGeometry(Part.LineSegment(V(-29.1, 17.5, 0), V(-23, 26, 0)), False)
sketch9.addGeometry(Part.LineSegment(V(10, 26, 0), V(-10, 26, 0)), False)
sketch9.addGeometry(Part.LineSegment(V(-10, 26, 0), V(-3.9, 17.5, 0)), False)
sketch9.addGeometry(Part.ArcOfCircle(Part.Circle(V(0, 17.5, 0), V(0, 0, 1), 3.9), math.radians(0), math.radians(180)), False)
sketch9.addGeometry(Part.LineSegment(V(3.9, 17.5, 0), V(10, 26, 0)), False)
sketch9.addGeometry(Part.LineSegment(V(43, 26, 0), V(23, 26, 0)), False)
sketch9.addGeometry(Part.LineSegment(V(23, 26, 0), V(29.1, 17.5, 0)), False)
sketch9.addGeometry(Part.ArcOfCircle(Part.Circle(V(33, 17.5, 0), V(0, 0, 1), 3.9), math.radians(0), math.radians(180)), False)
sketch9.addGeometry(Part.LineSegment(V(36.9, 17.5, 0), V(43, 26, 0)), False)
sketch9.addGeometry(Part.LineSegment(V(76, 26, 0), V(56, 26, 0)), False)
sketch9.addGeometry(Part.LineSegment(V(56, 26, 0), V(62.1, 17.5, 0)), False)
sketch9.addGeometry(Part.ArcOfCircle(Part.Circle(V(66, 17.5, 0), V(0, 0, 1), 3.9), math.radians(0), math.radians(180)), False)
sketch9.addGeometry(Part.LineSegment(V(69.9, 17.5, 0), V(76, 26, 0)), False)
sketch9.addConstraint(Sketcher.Constraint("Coincident", 0, 2, 1, 1))
sketch9.addConstraint(Sketcher.Constraint("Coincident", 1, 2, 2, 2))
sketch9.addConstraint(Sketcher.Constraint("Coincident", 2, 1, 3, 1))
sketch9.addConstraint(Sketcher.Constraint("Coincident", 3, 2, 0, 1))
sketch9.addConstraint(Sketcher.Constraint("Coincident", 4, 2, 5, 1))
sketch9.addConstraint(Sketcher.Constraint("Coincident", 5, 2, 6, 2))
sketch9.addConstraint(Sketcher.Constraint("Coincident", 6, 1, 7, 1))
sketch9.addConstraint(Sketcher.Constraint("Coincident", 7, 2, 4, 1))
sketch9.addConstraint(Sketcher.Constraint("Coincident", 8, 2, 9, 1))
sketch9.addConstraint(Sketcher.Constraint("Coincident", 9, 2, 10, 2))
sketch9.addConstraint(Sketcher.Constraint("Coincident", 10, 1, 11, 1))
sketch9.addConstraint(Sketcher.Constraint("Coincident", 11, 2, 8, 1))
sketch9.addConstraint(Sketcher.Constraint("Coincident", 12, 2, 13, 1))
sketch9.addConstraint(Sketcher.Constraint("Coincident", 13, 2, 14, 2))
sketch9.addConstraint(Sketcher.Constraint("Coincident", 14, 1, 15, 1))
sketch9.addConstraint(Sketcher.Constraint("Coincident", 15, 2, 12, 1))
sketch9.addConstraint(Sketcher.Constraint("Coincident", 16, 2, 17, 1))
sketch9.addConstraint(Sketcher.Constraint("Coincident", 17, 2, 18, 2))
sketch9.addConstraint(Sketcher.Constraint("Coincident", 18, 1, 19, 1))
sketch9.addConstraint(Sketcher.Constraint("Coincident", 19, 2, 16, 1))
sketch9.addConstraint(Sketcher.Constraint("Horizontal", 0))
sketch9.addConstraint(Sketcher.Constraint("Horizontal", 4))
sketch9.addConstraint(Sketcher.Constraint("Horizontal", 8))
sketch9.addConstraint(Sketcher.Constraint("Horizontal", 12))
sketch9.addConstraint(Sketcher.Constraint("Horizontal", 16))
sketch9.addConstraint(Sketcher.Constraint("Equal", 2, 6))
sketch9.addConstraint(Sketcher.Constraint("Equal", 6, 10))
sketch9.addConstraint(Sketcher.Constraint("Equal", 10, 14))
sketch9.addConstraint(Sketcher.Constraint("Equal", 14, 18))
sketch9.addConstraint(Sketcher.Constraint("Symmetric", 6, 3, 14, 3, -2))
sketch9.addConstraint(Sketcher.Constraint("Symmetric", 2, 3, 18, 3, -2))
sketch9.addConstraint(Sketcher.Constraint("Symmetric", 9, 2, 10, 1, -2))
sketch9.addConstraint(Sketcher.Constraint("Symmetric", 7, 2, 12, 2, -2))
sketch9.addConstraint(Sketcher.Constraint("Symmetric", 3, 2, 16, 2, -2))
sketch9.addConstraint(Sketcher.Constraint("Parallel", 1, 5))
sketch9.addConstraint(Sketcher.Constraint("Parallel", 3, 7))
sketch9.addConstraint(Sketcher.Constraint("Parallel", 5, 9))
sketch9.addConstraint(Sketcher.Constraint("Parallel", 7, 11))
sketch9.addConstraint(Sketcher.Constraint("Parallel", 9, 13))
sketch9.addConstraint(Sketcher.Constraint("Parallel", 11, 15))
sketch9.addConstraint(Sketcher.Constraint("Parallel", 13, 17))
sketch9.addConstraint(Sketcher.Constraint("Parallel", 15, 19))
sketch9.addConstraint(Sketcher.Constraint("Horizontal", 2, 3, 6, 3))
sketch9.addConstraint(Sketcher.Constraint("Horizontal", 6, 3, 10, 3))
sketch9.addConstraint(Sketcher.Constraint("Horizontal", 18, 3, 1, 2))
sketch9.addConstraint(Sketcher.Constraint("Horizontal", 1, 2, 2, 1))
sketch9.addConstraint(Sketcher.Constraint("Horizontal", 3, 2, 4, 2))
sketch9.addConstraint(Sketcher.Constraint("Horizontal", 2, 1, 5, 2))
sketch9.addConstraint(Sketcher.Constraint("Horizontal", 5, 2, 6, 1))
sketch9.addConstraint(Sketcher.Constraint("Horizontal", 7, 2, 8, 2))
sketch9.addConstraint(Sketcher.Constraint("Horizontal", 6, 1, 9, 2))
sketch9.addConstraint(Sketcher.Constraint("Horizontal", 10, 1, 13, 2))
sketch9.addConstraint(Sketcher.Constraint("Horizontal", 13, 2, 14, 1))
sketch9.addConstraint(Sketcher.Constraint("Horizontal", 17, 2, 18, 1))
sketch9.addConstraint(Sketcher.Constraint("Radius", 2, 3.9))
sketch9.addConstraint(Sketcher.Constraint("DistanceX", 2, 3, -1, 1, 66.0))
sketch9.addConstraint(Sketcher.Constraint("DistanceX", 6, 3, -1, 1, 33.0))
sketch9.addConstraint(Sketcher.Constraint("DistanceY", -1, 1, 0, 2, 26.0))
sketch9.addConstraint(Sketcher.Constraint("DistanceX", 0, 2, 0, 1, 20.04))
sketch9.addConstraint(Sketcher.Constraint("DistanceY", -1, 1, 2, 3, 17.5))
pocket6 = body.newObject("PartDesign::Pocket", "Pocket005")
pocket6.Profile = sketch9
pocket6.Length = 112.3

# Sketch on XZ plane
sketch10 = body.newObject("Sketcher::SketchObject", "Sketch009")
sketch10.AttachmentSupport = (doc.getObject("XZ_Plane"), [""])
sketch10.MapMode = "FlatFace"
sketch10.AttachmentOffset = App.Placement(V(0, 0, -35.9), App.Rotation())
sketch10.addGeometry(Part.Circle(V(0, 7.2, 0), V(0, 0, 1), 3), False)
sketch10.addConstraint(Sketcher.Constraint("PointOnObject", 0, 3, -2))
sketch10.addConstraint(Sketcher.Constraint("Diameter", 0, 6.0))
sketch10.addConstraint(Sketcher.Constraint("DistanceY", -1, 1, 0, 3, 7.25))
pocket7 = body.newObject("PartDesign::Pocket", "Pocket006")
pocket7.Profile = sketch10
pocket7.Length = 25
pocket7.Reversed = True

doc.recompute()
